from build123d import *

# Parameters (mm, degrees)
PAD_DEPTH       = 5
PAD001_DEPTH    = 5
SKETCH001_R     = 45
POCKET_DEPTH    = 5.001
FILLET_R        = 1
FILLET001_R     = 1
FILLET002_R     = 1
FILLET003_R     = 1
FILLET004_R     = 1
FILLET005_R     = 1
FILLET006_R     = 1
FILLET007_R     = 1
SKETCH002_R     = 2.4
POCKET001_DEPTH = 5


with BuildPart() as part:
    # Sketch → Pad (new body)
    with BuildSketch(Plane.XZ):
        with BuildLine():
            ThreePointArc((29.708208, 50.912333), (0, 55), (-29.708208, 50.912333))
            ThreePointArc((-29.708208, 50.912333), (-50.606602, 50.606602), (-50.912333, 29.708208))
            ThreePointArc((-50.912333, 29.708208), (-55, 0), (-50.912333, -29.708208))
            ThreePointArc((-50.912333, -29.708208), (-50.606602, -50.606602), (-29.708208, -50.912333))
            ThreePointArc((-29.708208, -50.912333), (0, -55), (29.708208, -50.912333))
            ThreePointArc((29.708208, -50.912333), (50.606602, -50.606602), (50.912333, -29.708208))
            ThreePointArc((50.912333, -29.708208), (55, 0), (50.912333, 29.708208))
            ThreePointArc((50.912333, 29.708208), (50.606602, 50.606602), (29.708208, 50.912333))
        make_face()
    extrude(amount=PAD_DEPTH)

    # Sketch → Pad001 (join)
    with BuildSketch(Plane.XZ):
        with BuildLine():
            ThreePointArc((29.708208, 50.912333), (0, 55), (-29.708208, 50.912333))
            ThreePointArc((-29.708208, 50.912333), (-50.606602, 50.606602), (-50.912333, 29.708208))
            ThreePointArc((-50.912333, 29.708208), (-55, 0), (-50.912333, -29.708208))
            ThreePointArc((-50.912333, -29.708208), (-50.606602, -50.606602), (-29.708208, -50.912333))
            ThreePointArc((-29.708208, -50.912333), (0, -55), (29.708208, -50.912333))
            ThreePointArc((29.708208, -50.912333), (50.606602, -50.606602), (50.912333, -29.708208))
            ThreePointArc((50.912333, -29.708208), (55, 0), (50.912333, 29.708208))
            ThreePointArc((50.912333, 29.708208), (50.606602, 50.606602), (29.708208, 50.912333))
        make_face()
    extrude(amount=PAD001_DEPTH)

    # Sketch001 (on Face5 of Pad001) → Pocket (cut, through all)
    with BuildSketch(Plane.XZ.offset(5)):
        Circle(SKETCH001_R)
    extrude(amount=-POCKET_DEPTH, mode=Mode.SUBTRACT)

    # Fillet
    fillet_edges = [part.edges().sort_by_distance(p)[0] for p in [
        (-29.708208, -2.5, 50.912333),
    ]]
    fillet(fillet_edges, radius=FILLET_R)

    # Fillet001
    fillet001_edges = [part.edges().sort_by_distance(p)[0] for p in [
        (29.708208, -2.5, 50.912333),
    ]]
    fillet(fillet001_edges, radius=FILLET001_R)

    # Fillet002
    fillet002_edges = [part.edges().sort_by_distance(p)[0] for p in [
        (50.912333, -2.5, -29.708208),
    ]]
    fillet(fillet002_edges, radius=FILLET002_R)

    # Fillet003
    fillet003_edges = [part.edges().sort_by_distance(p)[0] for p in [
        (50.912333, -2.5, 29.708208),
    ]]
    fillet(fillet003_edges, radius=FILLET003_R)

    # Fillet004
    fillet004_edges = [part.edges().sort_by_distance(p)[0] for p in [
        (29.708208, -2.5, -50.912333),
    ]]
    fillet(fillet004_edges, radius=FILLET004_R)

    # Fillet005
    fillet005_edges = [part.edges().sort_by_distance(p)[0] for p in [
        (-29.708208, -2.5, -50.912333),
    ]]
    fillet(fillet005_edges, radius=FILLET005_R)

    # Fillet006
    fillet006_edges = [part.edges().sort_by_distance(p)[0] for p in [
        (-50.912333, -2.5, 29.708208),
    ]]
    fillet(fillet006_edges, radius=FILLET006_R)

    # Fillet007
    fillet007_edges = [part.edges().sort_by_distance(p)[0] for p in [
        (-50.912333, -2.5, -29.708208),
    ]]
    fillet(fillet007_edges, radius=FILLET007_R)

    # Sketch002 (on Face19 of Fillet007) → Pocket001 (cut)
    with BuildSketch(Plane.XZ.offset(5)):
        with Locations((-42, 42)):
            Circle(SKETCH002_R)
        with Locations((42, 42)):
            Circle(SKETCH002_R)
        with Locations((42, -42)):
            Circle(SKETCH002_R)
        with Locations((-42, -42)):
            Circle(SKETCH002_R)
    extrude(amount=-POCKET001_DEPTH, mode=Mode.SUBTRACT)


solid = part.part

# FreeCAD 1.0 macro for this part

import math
import FreeCAD as App
import Part
import Sketcher

V = App.Vector
Q = App.Units.Quantity


def edges_at(feature, points):
    """Names of the edges that pass closest to the given points."""
    edges = feature.Shape.Edges
    near = lambda p: min(range(len(edges)), key=lambda i: edges[i].distToShape(Part.Vertex(*p))[0])
    return sorted({f"Edge{near(p) + 1}" for p in points})

doc = App.newDocument("Part")
body = doc.addObject("PartDesign::Body", "Body")

sketch1 = body.newObject("Sketcher::SketchObject", "Sketch")
sketch1.AttachmentSupport = (doc.getObject("XZ_Plane"), [""])
sketch1.MapMode = "FlatFace"
sketch1.addGeometry(Part.ArcOfCircle(Part.Circle(V(0, -54.999988, 0), V(0, 0, 1), 109.999988), math.radians(74.331291), math.radians(105.668709)), False)
sketch1.addGeometry(Part.ArcOfCircle(Part.Circle(V(-40, 40, 0), V(0, 0, 1), 15), math.radians(46.676286), math.radians(223.323714)), False)
sketch1.addGeometry(Part.ArcOfCircle(Part.Circle(V(54.999988, 0, 0), V(0, 0, 1), 109.999988), math.radians(164.331291), math.radians(195.668709)), False)
sketch1.addGeometry(Part.ArcOfCircle(Part.Circle(V(-40, -40, 0), V(0, 0, 1), 15), math.radians(136.676286), math.radians(313.323714)), False)
sketch1.addGeometry(Part.ArcOfCircle(Part.Circle(V(0, 54.999988, 0), V(0, 0, 1), 109.999988), math.radians(-105.668709), math.radians(-74.331291)), False)
sketch1.addGeometry(Part.ArcOfCircle(Part.Circle(V(40, -40, 0), V(0, 0, 1), 15), math.radians(-133.323714), math.radians(43.323714)), False)
sketch1.addGeometry(Part.ArcOfCircle(Part.Circle(V(-54.999988, 0, 0), V(0, 0, 1), 109.999988), math.radians(-15.668709), math.radians(15.668709)), False)
sketch1.addGeometry(Part.ArcOfCircle(Part.Circle(V(40, 40, 0), V(0, 0, 1), 15), math.radians(-43.323714), math.radians(133.323714)), False)
sketch1.addConstraint(Sketcher.Constraint("Coincident", 0, 2, 1, 1))
sketch1.addConstraint(Sketcher.Constraint("Coincident", 1, 2, 2, 1))
sketch1.addConstraint(Sketcher.Constraint("Coincident", 2, 2, 3, 1))
sketch1.addConstraint(Sketcher.Constraint("Coincident", 3, 2, 4, 1))
sketch1.addConstraint(Sketcher.Constraint("Coincident", 4, 2, 5, 1))
sketch1.addConstraint(Sketcher.Constraint("Coincident", 5, 2, 6, 1))
sketch1.addConstraint(Sketcher.Constraint("Coincident", 6, 2, 7, 1))
sketch1.addConstraint(Sketcher.Constraint("Coincident", 7, 2, 0, 1))
sketch1.addConstraint(Sketcher.Constraint("Equal", 0, 2))
sketch1.addConstraint(Sketcher.Constraint("Equal", 1, 3))
sketch1.addConstraint(Sketcher.Constraint("Equal", 2, 4))
sketch1.addConstraint(Sketcher.Constraint("Equal", 3, 5))
sketch1.addConstraint(Sketcher.Constraint("Equal", 4, 6))
sketch1.addConstraint(Sketcher.Constraint("Equal", 5, 7))
sketch1.addConstraint(Sketcher.Constraint("Symmetric", 0, 3, 4, 3, -1, 1))
sketch1.addConstraint(Sketcher.Constraint("Symmetric", 1, 3, 5, 3, -1, 1))
sketch1.addConstraint(Sketcher.Constraint("Symmetric", 2, 3, 6, 3, -1, 1))
sketch1.addConstraint(Sketcher.Constraint("Symmetric", 3, 3, 7, 3, -1, 1))
sketch1.addConstraint(Sketcher.Constraint("Symmetric", 3, 3, 5, 3, -2))
sketch1.addConstraint(Sketcher.Constraint("PointOnObject", 0, 3, -2))
sketch1.addConstraint(Sketcher.Constraint("PointOnObject", 2, 3, -1))
sketch1.addConstraint(Sketcher.Constraint("Radius", 1, Q("15 mm")))
sketch1.addConstraint(Sketcher.Constraint("DistanceX", 1, 3, -1, 1, Q("40 mm")))
sketch1.addConstraint(Sketcher.Constraint("DistanceY", -1, 1, 1, 3, Q("40 mm")))
sketch1.addConstraint(Sketcher.Constraint("Radius", 0, Q("109.999988 mm")))
sketch1.addConstraint(Sketcher.Constraint("DistanceY", 0, 3, -1, 1, Q("54.999988 mm")))
sketch1.addConstraint(Sketcher.Constraint("DistanceX", -1, 1, 2, 3, Q("54.999988 mm")))
pad1 = body.newObject("PartDesign::Pad", "Pad")
pad1.Profile = sketch1
pad1.Length = 5

sketch2 = body.newObject("Sketcher::SketchObject", "Sketch001")
sketch2.AttachmentSupport = (doc.getObject("XZ_Plane"), [""])
sketch2.MapMode = "FlatFace"
sketch2.addGeometry(Part.ArcOfCircle(Part.Circle(V(0, -54.999988, 0), V(0, 0, 1), 109.999988), math.radians(74.331291), math.radians(105.668709)), False)
sketch2.addGeometry(Part.ArcOfCircle(Part.Circle(V(-40, 40, 0), V(0, 0, 1), 15), math.radians(46.676286), math.radians(223.323714)), False)
sketch2.addGeometry(Part.ArcOfCircle(Part.Circle(V(54.999988, 0, 0), V(0, 0, 1), 109.999988), math.radians(164.331291), math.radians(195.668709)), False)
sketch2.addGeometry(Part.ArcOfCircle(Part.Circle(V(-40, -40, 0), V(0, 0, 1), 15), math.radians(136.676286), math.radians(313.323714)), False)
sketch2.addGeometry(Part.ArcOfCircle(Part.Circle(V(0, 54.999988, 0), V(0, 0, 1), 109.999988), math.radians(-105.668709), math.radians(-74.331291)), False)
sketch2.addGeometry(Part.ArcOfCircle(Part.Circle(V(40, -40, 0), V(0, 0, 1), 15), math.radians(-133.323714), math.radians(43.323714)), False)
sketch2.addGeometry(Part.ArcOfCircle(Part.Circle(V(-54.999988, 0, 0), V(0, 0, 1), 109.999988), math.radians(-15.668709), math.radians(15.668709)), False)
sketch2.addGeometry(Part.ArcOfCircle(Part.Circle(V(40, 40, 0), V(0, 0, 1), 15), math.radians(-43.323714), math.radians(133.323714)), False)
sketch2.addConstraint(Sketcher.Constraint("Coincident", 0, 2, 1, 1))
sketch2.addConstraint(Sketcher.Constraint("Coincident", 1, 2, 2, 1))
sketch2.addConstraint(Sketcher.Constraint("Coincident", 2, 2, 3, 1))
sketch2.addConstraint(Sketcher.Constraint("Coincident", 3, 2, 4, 1))
sketch2.addConstraint(Sketcher.Constraint("Coincident", 4, 2, 5, 1))
sketch2.addConstraint(Sketcher.Constraint("Coincident", 5, 2, 6, 1))
sketch2.addConstraint(Sketcher.Constraint("Coincident", 6, 2, 7, 1))
sketch2.addConstraint(Sketcher.Constraint("Coincident", 7, 2, 0, 1))
sketch2.addConstraint(Sketcher.Constraint("Equal", 0, 2))
sketch2.addConstraint(Sketcher.Constraint("Equal", 1, 3))
sketch2.addConstraint(Sketcher.Constraint("Equal", 2, 4))
sketch2.addConstraint(Sketcher.Constraint("Equal", 3, 5))
sketch2.addConstraint(Sketcher.Constraint("Equal", 4, 6))
sketch2.addConstraint(Sketcher.Constraint("Equal", 5, 7))
sketch2.addConstraint(Sketcher.Constraint("Symmetric", 0, 3, 4, 3, -1, 1))
sketch2.addConstraint(Sketcher.Constraint("Symmetric", 1, 3, 5, 3, -1, 1))
sketch2.addConstraint(Sketcher.Constraint("Symmetric", 2, 3, 6, 3, -1, 1))
sketch2.addConstraint(Sketcher.Constraint("Symmetric", 3, 3, 7, 3, -1, 1))
sketch2.addConstraint(Sketcher.Constraint("Symmetric", 3, 3, 5, 3, -2))
sketch2.addConstraint(Sketcher.Constraint("PointOnObject", 0, 3, -2))
sketch2.addConstraint(Sketcher.Constraint("PointOnObject", 2, 3, -1))
sketch2.addConstraint(Sketcher.Constraint("Radius", 1, Q("15 mm")))
sketch2.addConstraint(Sketcher.Constraint("DistanceX", 1, 3, -1, 1, Q("40 mm")))
sketch2.addConstraint(Sketcher.Constraint("DistanceY", -1, 1, 1, 3, Q("40 mm")))
sketch2.addConstraint(Sketcher.Constraint("Radius", 0, Q("109.999988 mm")))
sketch2.addConstraint(Sketcher.Constraint("DistanceY", 0, 3, -1, 1, Q("54.999988 mm")))
sketch2.addConstraint(Sketcher.Constraint("DistanceX", -1, 1, 2, 3, Q("54.999988 mm")))
pad2 = body.newObject("PartDesign::Pad", "Pad001")
pad2.Profile = sketch2
pad2.Length = 5

sketch3 = body.newObject("Sketcher::SketchObject", "Sketch002")
sketch3.AttachmentSupport = (doc.getObject("XZ_Plane"), [""])
sketch3.MapMode = "FlatFace"
sketch3.AttachmentOffset = App.Placement(V(0, 0, 5), App.Rotation())
sketch3.addGeometry(Part.Circle(V(0, 0, 0), V(0, 0, 1), 45), False)
sketch3.addConstraint(Sketcher.Constraint("Coincident", 0, 3, -1, 1))
sketch3.addConstraint(Sketcher.Constraint("Diameter", 0, Q("90 mm")))
pocket1 = body.newObject("PartDesign::Pocket", "Pocket")
pocket1.Profile = sketch3
pocket1.Type = "ThroughAll"
doc.recompute()

fillet = body.newObject("PartDesign::Fillet", "Fillet")
fillet.Base = (pocket1, edges_at(pocket1, [(-29.708, -2.5, 50.912)]))
fillet.Radius = 1
doc.recompute()

fillet2 = body.newObject("PartDesign::Fillet", "Fillet001")
fillet2.Base = (fillet, edges_at(fillet, [(29.708, -2.5, 50.912)]))
fillet2.Radius = 1
doc.recompute()

fillet3 = body.newObject("PartDesign::Fillet", "Fillet002")
fillet3.Base = (fillet2, edges_at(fillet2, [(50.912, -2.5, -29.708)]))
fillet3.Radius = 1
doc.recompute()

fillet4 = body.newObject("PartDesign::Fillet", "Fillet003")
fillet4.Base = (fillet3, edges_at(fillet3, [(50.912, -2.5, 29.708)]))
fillet4.Radius = 1
doc.recompute()

fillet5 = body.newObject("PartDesign::Fillet", "Fillet004")
fillet5.Base = (fillet4, edges_at(fillet4, [(29.708, -2.5, -50.912)]))
fillet5.Radius = 1
doc.recompute()

fillet6 = body.newObject("PartDesign::Fillet", "Fillet005")
fillet6.Base = (fillet5, edges_at(fillet5, [(-29.708, -2.5, -50.912)]))
fillet6.Radius = 1
doc.recompute()

fillet7 = body.newObject("PartDesign::Fillet", "Fillet006")
fillet7.Base = (fillet6, edges_at(fillet6, [(-50.912, -2.5, 29.708)]))
fillet7.Radius = 1
doc.recompute()

fillet8 = body.newObject("PartDesign::Fillet", "Fillet007")
fillet8.Base = (fillet7, edges_at(fillet7, [(-50.912, -2.5, -29.708)]))
fillet8.Radius = 1

sketch4 = body.newObject("Sketcher::SketchObject", "Sketch003")
sketch4.AttachmentSupport = (doc.getObject("XZ_Plane"), [""])
sketch4.MapMode = "FlatFace"
sketch4.AttachmentOffset = App.Placement(V(0, 0, 5), App.Rotation())
sketch4.addGeometry(Part.Circle(V(-42, 42, 0), V(0, 0, 1), 2.4), False)
sketch4.addGeometry(Part.Circle(V(42, 42, 0), V(0, 0, 1), 2.4), False)
sketch4.addGeometry(Part.Circle(V(42, -42, 0), V(0, 0, 1), 2.4), False)
sketch4.addGeometry(Part.Circle(V(-42, -42, 0), V(0, 0, 1), 2.4), False)
sketch4.addConstraint(Sketcher.Constraint("Equal", 0, 1))
sketch4.addConstraint(Sketcher.Constraint("Equal", 1, 2))
sketch4.addConstraint(Sketcher.Constraint("Equal", 2, 3))
sketch4.addConstraint(Sketcher.Constraint("Symmetric", 0, 3, 2, 3, -1, 1))
sketch4.addConstraint(Sketcher.Constraint("Symmetric", 1, 3, 3, 3, -1, 1))
sketch4.addConstraint(Sketcher.Constraint("Symmetric", 0, 3, 1, 3, -2))
sketch4.addConstraint(Sketcher.Constraint("Diameter", 0, Q("4.8 mm")))
sketch4.addConstraint(Sketcher.Constraint("DistanceX", 0, 3, -1, 1, Q("42 mm")))
sketch4.addConstraint(Sketcher.Constraint("DistanceY", -1, 1, 0, 3, Q("42 mm")))
pocket2 = body.newObject("PartDesign::Pocket", "Pocket001")
pocket2.Profile = sketch4
pocket2.Length = 5

doc.recompute()
